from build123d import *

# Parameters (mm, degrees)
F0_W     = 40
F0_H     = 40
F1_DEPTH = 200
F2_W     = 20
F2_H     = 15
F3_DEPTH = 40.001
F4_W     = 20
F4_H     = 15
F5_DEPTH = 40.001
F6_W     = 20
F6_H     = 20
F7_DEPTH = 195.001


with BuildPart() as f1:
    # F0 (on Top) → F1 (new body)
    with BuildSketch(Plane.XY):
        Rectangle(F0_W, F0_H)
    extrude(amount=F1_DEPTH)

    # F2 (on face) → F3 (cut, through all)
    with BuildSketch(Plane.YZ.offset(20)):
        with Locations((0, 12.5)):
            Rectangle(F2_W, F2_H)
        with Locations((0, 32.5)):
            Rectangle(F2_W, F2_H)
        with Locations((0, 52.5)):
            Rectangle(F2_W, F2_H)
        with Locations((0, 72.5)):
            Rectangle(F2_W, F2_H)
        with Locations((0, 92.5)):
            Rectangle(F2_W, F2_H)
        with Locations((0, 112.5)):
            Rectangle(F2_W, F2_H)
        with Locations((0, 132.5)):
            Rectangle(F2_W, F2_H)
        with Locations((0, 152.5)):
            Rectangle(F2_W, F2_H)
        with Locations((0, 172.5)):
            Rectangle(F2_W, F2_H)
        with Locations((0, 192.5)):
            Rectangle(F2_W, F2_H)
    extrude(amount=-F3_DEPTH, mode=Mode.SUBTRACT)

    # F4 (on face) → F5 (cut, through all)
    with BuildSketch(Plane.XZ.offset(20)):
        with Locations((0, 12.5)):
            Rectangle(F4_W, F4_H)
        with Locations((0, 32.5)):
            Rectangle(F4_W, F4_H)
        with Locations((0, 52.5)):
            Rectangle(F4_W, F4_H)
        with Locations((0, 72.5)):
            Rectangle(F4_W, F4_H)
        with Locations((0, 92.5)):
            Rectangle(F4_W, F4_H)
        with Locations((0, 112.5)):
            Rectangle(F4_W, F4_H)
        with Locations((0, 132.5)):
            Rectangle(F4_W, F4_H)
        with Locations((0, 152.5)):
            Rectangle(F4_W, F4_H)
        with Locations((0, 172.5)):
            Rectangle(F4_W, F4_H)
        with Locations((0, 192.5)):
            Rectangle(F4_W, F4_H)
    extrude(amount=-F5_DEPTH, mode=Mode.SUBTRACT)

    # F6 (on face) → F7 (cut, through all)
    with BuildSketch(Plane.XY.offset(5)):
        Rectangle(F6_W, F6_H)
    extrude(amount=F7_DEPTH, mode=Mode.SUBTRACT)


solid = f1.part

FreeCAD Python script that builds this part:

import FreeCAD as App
import Part
import Sketcher

V = App.Vector

doc = App.newDocument("Part")
body = doc.addObject("PartDesign::Body", "Body")

# Sketch on XY plane
sketch1 = doc.addObject("Sketcher::SketchObject", "Sketch")
body.addObject(sketch1)
sketch1.AttachmentSupport = (doc.XY_Plane, [""])
sketch1.MapMode = "FlatFace"
sketch1.addGeometry(Part.LineSegment(V(-20, 20, 0), V(-20, -20, 0)), False)
sketch1.addGeometry(Part.LineSegment(V(-20, -20, 0), V(20, -20, 0)), False)
sketch1.addGeometry(Part.LineSegment(V(20, -20, 0), V(20, 20, 0)), False)
sketch1.addGeometry(Part.LineSegment(V(20, 20, 0), V(-20, 20, 0)), False)
sketch1.addConstraint(Sketcher.Constraint("Coincident", 0, 2, 1, 1))
sketch1.addConstraint(Sketcher.Constraint("Coincident", 1, 2, 2, 1))
sketch1.addConstraint(Sketcher.Constraint("Coincident", 2, 2, 3, 1))
sketch1.addConstraint(Sketcher.Constraint("Coincident", 3, 2, 0, 1))
sketch1.addConstraint(Sketcher.Constraint("Vertical", 0))
sketch1.addConstraint(Sketcher.Constraint("Horizontal", 1))
sketch1.addConstraint(Sketcher.Constraint("Vertical", 2))
sketch1.addConstraint(Sketcher.Constraint("Horizontal", 3))
sketch1.addConstraint(Sketcher.Constraint("Symmetric", 0, 2, 2, 2, -1, 1))
sketch1.addConstraint(Sketcher.Constraint("Equal", 3, 0))
sketch1.addConstraint(Sketcher.Constraint("DistanceX", 1, 1, 1, 2, 40.0))
pad1 = doc.addObject("PartDesign::Pad", "Pad")
body.addObject(pad1)
pad1.Profile = sketch1
pad1.Length = 200

# Sketch on YZ plane
sketch2 = doc.addObject("Sketcher::SketchObject", "Sketch001")
body.addObject(sketch2)
sketch2.AttachmentSupport = (doc.YZ_Plane, [""])
sketch2.MapMode = "FlatFace"
sketch2.AttachmentOffset = App.Placement(V(0, 0, 20), App.Rotation())
sketch2.addGeometry(Part.LineSegment(V(-10, 20, 0), V(-10, 5, 0)), False)
sketch2.addGeometry(Part.LineSegment(V(-10, 5, 0), V(10, 5, 0)), False)
sketch2.addGeometry(Part.LineSegment(V(10, 5, 0), V(10, 20, 0)), False)
sketch2.addGeometry(Part.LineSegment(V(10, 20, 0), V(-10, 20, 0)), False)
sketch2.addGeometry(Part.LineSegment(V(-10, 40, 0), V(-10, 25, 0)), False)
sketch2.addGeometry(Part.LineSegment(V(-10, 25, 0), V(10, 25, 0)), False)
sketch2.addGeometry(Part.LineSegment(V(10, 25, 0), V(10, 40, 0)), False)
sketch2.addGeometry(Part.LineSegment(V(10, 40, 0), V(-10, 40, 0)), False)
sketch2.addGeometry(Part.LineSegment(V(-10, 60, 0), V(-10, 45, 0)), False)
sketch2.addGeometry(Part.LineSegment(V(-10, 45, 0), V(10, 45, 0)), False)
sketch2.addGeometry(Part.LineSegment(V(10, 45, 0), V(10, 60, 0)), False)
sketch2.addGeometry(Part.LineSegment(V(10, 60, 0), V(-10, 60, 0)), False)
sketch2.addGeometry(Part.LineSegment(V(-10, 80, 0), V(-10, 65, 0)), False)
sketch2.addGeometry(Part.LineSegment(V(-10, 65, 0), V(10, 65, 0)), False)
sketch2.addGeometry(Part.LineSegment(V(10, 65, 0), V(10, 80, 0)), False)
sketch2.addGeometry(Part.LineSegment(V(10, 80, 0), V(-10, 80, 0)), False)
sketch2.addGeometry(Part.LineSegment(V(-10, 100, 0), V(-10, 85, 0)), False)
sketch2.addGeometry(Part.LineSegment(V(-10, 85, 0), V(10, 85, 0)), False)
sketch2.addGeometry(Part.LineSegment(V(10, 85, 0), V(10, 100, 0)), False)
sketch2.addGeometry(Part.LineSegment(V(10, 100, 0), V(-10, 100, 0)), False)
sketch2.addGeometry(Part.LineSegment(V(-10, 120, 0), V(-10, 105, 0)), False)
sketch2.addGeometry(Part.LineSegment(V(-10, 105, 0), V(10, 105, 0)), False)
sketch2.addGeometry(Part.LineSegment(V(10, 105, 0), V(10, 120, 0)), False)
sketch2.addGeometry(Part.LineSegment(V(10, 120, 0), V(-10, 120, 0)), False)
sketch2.addGeometry(Part.LineSegment(V(-10, 140, 0), V(-10, 125, 0)), False)
sketch2.addGeometry(Part.LineSegment(V(-10, 125, 0), V(10, 125, 0)), False)
sketch2.addGeometry(Part.LineSegment(V(10, 125, 0), V(10, 140, 0)), False)
sketch2.addGeometry(Part.LineSegment(V(10, 140, 0), V(-10, 140, 0)), False)
sketch2.addGeometry(Part.LineSegment(V(-10, 160, 0), V(-10, 145, 0)), False)
sketch2.addGeometry(Part.LineSegment(V(-10, 145, 0), V(10, 145, 0)), False)
sketch2.addGeometry(Part.LineSegment(V(10, 145, 0), V(10, 160, 0)), False)
sketch2.addGeometry(Part.LineSegment(V(10, 160, 0), V(-10, 160, 0)), False)
sketch2.addGeometry(Part.LineSegment(V(-10, 180, 0), V(-10, 165, 0)), False)
sketch2.addGeometry(Part.LineSegment(V(-10, 165, 0), V(10, 165, 0)), False)
sketch2.addGeometry(Part.LineSegment(V(10, 165, 0), V(10, 180, 0)), False)
sketch2.addGeometry(Part.LineSegment(V(10, 180, 0), V(-10, 180, 0)), False)
sketch2.addGeometry(Part.LineSegment(V(-10, 200, 0), V(-10, 185, 0)), False)
sketch2.addGeometry(Part.LineSegment(V(-10, 185, 0), V(10, 185, 0)), False)
sketch2.addGeometry(Part.LineSegment(V(10, 185, 0), V(10, 200, 0)), False)
sketch2.addGeometry(Part.LineSegment(V(10, 200, 0), V(-10, 200, 0)), False)
sketch2.addConstraint(Sketcher.Constraint("Coincident", 0, 2, 1, 1))
sketch2.addConstraint(Sketcher.Constraint("Coincident", 1, 2, 2, 1))
sketch2.addConstraint(Sketcher.Constraint("Coincident", 2, 2, 3, 1))
sketch2.addConstraint(Sketcher.Constraint("Coincident", 3, 2, 0, 1))
sketch2.addConstraint(Sketcher.Constraint("Coincident", 4, 2, 5, 1))
sketch2.addConstraint(Sketcher.Constraint("Coincident", 5, 2, 6, 1))
sketch2.addConstraint(Sketcher.Constraint("Coincident", 6, 2, 7, 1))
sketch2.addConstraint(Sketcher.Constraint("Coincident", 7, 2, 4, 1))
sketch2.addConstraint(Sketcher.Constraint("Coincident", 8, 2, 9, 1))
sketch2.addConstraint(Sketcher.Constraint("Coincident", 9, 2, 10, 1))
sketch2.addConstraint(Sketcher.Constraint("Coincident", 10, 2, 11, 1))
sketch2.addConstraint(Sketcher.Constraint("Coincident", 11, 2, 8, 1))
sketch2.addConstraint(Sketcher.Constraint("Coincident", 12, 2, 13, 1))
sketch2.addConstraint(Sketcher.Constraint("Coincident", 13, 2, 14, 1))
sketch2.addConstraint(Sketcher.Constraint("Coincident", 14, 2, 15, 1))
sketch2.addConstraint(Sketcher.Constraint("Coincident", 15, 2, 12, 1))
sketch2.addConstraint(Sketcher.Constraint("Coincident", 16, 2, 17, 1))
sketch2.addConstraint(Sketcher.Constraint("Coincident", 17, 2, 18, 1))
sketch2.addConstraint(Sketcher.Constraint("Coincident", 18, 2, 19, 1))
sketch2.addConstraint(Sketcher.Constraint("Coincident", 19, 2, 16, 1))
sketch2.addConstraint(Sketcher.Constraint("Coincident", 20, 2, 21, 1))
sketch2.addConstraint(Sketcher.Constraint("Coincident", 21, 2, 22, 1))
sketch2.addConstraint(Sketcher.Constraint("Coincident", 22, 2, 23, 1))
sketch2.addConstraint(Sketcher.Constraint("Coincident", 23, 2, 20, 1))
sketch2.addConstraint(Sketcher.Constraint("Coincident", 24, 2, 25, 1))
sketch2.addConstraint(Sketcher.Constraint("Coincident", 25, 2, 26, 1))
sketch2.addConstraint(Sketcher.Constraint("Coincident", 26, 2, 27, 1))
sketch2.addConstraint(Sketcher.Constraint("Coincident", 27, 2, 24, 1))
sketch2.addConstraint(Sketcher.Constraint("Coincident", 28, 2, 29, 1))
sketch2.addConstraint(Sketcher.Constraint("Coincident", 29, 2, 30, 1))
sketch2.addConstraint(Sketcher.Constraint("Coincident", 30, 2, 31, 1))
sketch2.addConstraint(Sketcher.Constraint("Coincident", 31, 2, 28, 1))
sketch2.addConstraint(Sketcher.Constraint("Coincident", 32, 2, 33, 1))
sketch2.addConstraint(Sketcher.Constraint("Coincident", 33, 2, 34, 1))
sketch2.addConstraint(Sketcher.Constraint("Coincident", 34, 2, 35, 1))
sketch2.addConstraint(Sketcher.Constraint("Coincident", 35, 2, 32, 1))
sketch2.addConstraint(Sketcher.Constraint("Coincident", 36, 2, 37, 1))
sketch2.addConstraint(Sketcher.Constraint("Coincident", 37, 2, 38, 1))
sketch2.addConstraint(Sketcher.Constraint("Coincident", 38, 2, 39, 1))
sketch2.addConstraint(Sketcher.Constraint("Coincident", 39, 2, 36, 1))
sketch2.addConstraint(Sketcher.Constraint("Vertical", 0))
sketch2.addConstraint(Sketcher.Constraint("Horizontal", 1))
sketch2.addConstraint(Sketcher.Constraint("Vertical", 2))
sketch2.addConstraint(Sketcher.Constraint("Horizontal", 3))
sketch2.addConstraint(Sketcher.Constraint("Vertical", 4))
sketch2.addConstraint(Sketcher.Constraint("Horizontal", 5))
sketch2.addConstraint(Sketcher.Constraint("Vertical", 6))
sketch2.addConstraint(Sketcher.Constraint("Horizontal", 7))
sketch2.addConstraint(Sketcher.Constraint("Vertical", 8))
sketch2.addConstraint(Sketcher.Constraint("Horizontal", 9))
sketch2.addConstraint(Sketcher.Constraint("Vertical", 10))
sketch2.addConstraint(Sketcher.Constraint("Horizontal", 11))
sketch2.addConstraint(Sketcher.Constraint("Vertical", 12))
sketch2.addConstraint(Sketcher.Constraint("Horizontal", 13))
sketch2.addConstraint(Sketcher.Constraint("Vertical", 14))
sketch2.addConstraint(Sketcher.Constraint("Horizontal", 15))
sketch2.addConstraint(Sketcher.Constraint("Vertical", 16))
sketch2.addConstraint(Sketcher.Constraint("Horizontal", 17))
sketch2.addConstraint(Sketcher.Constraint("Vertical", 18))
sketch2.addConstraint(Sketcher.Constraint("Horizontal", 19))
sketch2.addConstraint(Sketcher.Constraint("Vertical", 20))
sketch2.addConstraint(Sketcher.Constraint("Horizontal", 21))
sketch2.addConstraint(Sketcher.Constraint("Vertical", 22))
sketch2.addConstraint(Sketcher.Constraint("Horizontal", 23))
sketch2.addConstraint(Sketcher.Constraint("Vertical", 24))
sketch2.addConstraint(Sketcher.Constraint("Horizontal", 25))
sketch2.addConstraint(Sketcher.Constraint("Vertical", 26))
sketch2.addConstraint(Sketcher.Constraint("Horizontal", 27))
sketch2.addConstraint(Sketcher.Constraint("Vertical", 28))
sketch2.addConstraint(Sketcher.Constraint("Horizontal", 29))
sketch2.addConstraint(Sketcher.Constraint("Vertical", 30))
sketch2.addConstraint(Sketcher.Constraint("Horizontal", 31))
sketch2.addConstraint(Sketcher.Constraint("Vertical", 32))
sketch2.addConstraint(Sketcher.Constraint("Horizontal", 33))
sketch2.addConstraint(Sketcher.Constraint("Vertical", 34))
sketch2.addConstraint(Sketcher.Constraint("Horizontal", 35))
sketch2.addConstraint(Sketcher.Constraint("Vertical", 36))
sketch2.addConstraint(Sketcher.Constraint("Horizontal", 37))
sketch2.addConstraint(Sketcher.Constraint("Vertical", 38))
sketch2.addConstraint(Sketcher.Constraint("Horizontal", 39))
sketch2.addConstraint(Sketcher.Constraint("Vertical", 3, 2, 4, 2))
sketch2.addConstraint(Sketcher.Constraint("Vertical", 2, 2, 5, 2))
sketch2.addConstraint(Sketcher.Constraint("Vertical", 7, 2, 8, 2))
sketch2.addConstraint(Sketcher.Constraint("Vertical", 6, 2, 9, 2))
sketch2.addConstraint(Sketcher.Constraint("Vertical", 11, 2, 12, 2))
sketch2.addConstraint(Sketcher.Constraint("Vertical", 10, 2, 13, 2))
sketch2.addConstraint(Sketcher.Constraint("Vertical", 15, 2, 16, 2))
sketch2.addConstraint(Sketcher.Constraint("Vertical", 14, 2, 17, 2))
sketch2.addConstraint(Sketcher.Constraint("Vertical", 19, 2, 20, 2))
sketch2.addConstraint(Sketcher.Constraint("Vertical", 18, 2, 21, 2))
sketch2.addConstraint(Sketcher.Constraint("Vertical", 23, 2, 24, 2))
sketch2.addConstraint(Sketcher.Constraint("Vertical", 22, 2, 25, 2))
sketch2.addConstraint(Sketcher.Constraint("Vertical", 27, 2, 28, 2))
sketch2.addConstraint(Sketcher.Constraint("Vertical", 26, 2, 29, 2))
sketch2.addConstraint(Sketcher.Constraint("Vertical", 31, 2, 32, 2))
sketch2.addConstraint(Sketcher.Constraint("Vertical", 30, 2, 33, 2))
sketch2.addConstraint(Sketcher.Constraint("Vertical", 35, 2, 36, 2))
sketch2.addConstraint(Sketcher.Constraint("Vertical", 34, 2, 37, 2))
sketch2.addConstraint(Sketcher.Constraint("Equal", 2, 4))
sketch2.addConstraint(Sketcher.Constraint("Equal", 6, 8))
sketch2.addConstraint(Sketcher.Constraint("Equal", 10, 12))
sketch2.addConstraint(Sketcher.Constraint("Equal", 14, 16))
sketch2.addConstraint(Sketcher.Constraint("Equal", 18, 20))
sketch2.addConstraint(Sketcher.Constraint("Equal", 22, 24))
sketch2.addConstraint(Sketcher.Constraint("Equal", 26, 28))
sketch2.addConstraint(Sketcher.Constraint("Equal", 30, 32))
sketch2.addConstraint(Sketcher.Constraint("Equal", 34, 36))
sketch2.addConstraint(Sketcher.Constraint("DistanceX", 1, 1, 1, 2, 20.0))
sketch2.addConstraint(Sketcher.Constraint("DistanceY", 0, 2, 0, 1, 15.0))
sketch2.addConstraint(Sketcher.Constraint("DistanceX", 0, 2, -1, 1, 10.0))
sketch2.addConstraint(Sketcher.Constraint("DistanceY", -1, 1, 0, 2, 5.0))
sketch2.addConstraint(Sketcher.Constraint("DistanceY", -1, 1, 4, 2, 25.0))
sketch2.addConstraint(Sketcher.Constraint("DistanceY", -1, 1, 8, 2, 45.0))
sketch2.addConstraint(Sketcher.Constraint("DistanceY", -1, 1, 12, 2, 65.0))
sketch2.addConstraint(Sketcher.Constraint("DistanceY", -1, 1, 16, 2, 85.0))
sketch2.addConstraint(Sketcher.Constraint("DistanceY", -1, 1, 20, 2, 105.0))
sketch2.addConstraint(Sketcher.Constraint("DistanceY", -1, 1, 24, 2, 125.0))
sketch2.addConstraint(Sketcher.Constraint("DistanceY", -1, 1, 28, 2, 145.0))
sketch2.addConstraint(Sketcher.Constraint("DistanceY", -1, 1, 32, 2, 165.0))
sketch2.addConstraint(Sketcher.Constraint("DistanceY", -1, 1, 36, 2, 185.0))
pocket1 = doc.addObject("PartDesign::Pocket", "Pocket")
body.addObject(pocket1)
pocket1.Profile = sketch2
pocket1.Type = "ThroughAll"

# Sketch on XZ plane
sketch3 = doc.addObject("Sketcher::SketchObject", "Sketch002")
body.addObject(sketch3)
sketch3.AttachmentSupport = (doc.XZ_Plane, [""])
sketch3.MapMode = "FlatFace"
sketch3.AttachmentOffset = App.Placement(V(0, 0, 20), App.Rotation())
sketch3.addGeometry(Part.LineSegment(V(-10, 20, 0), V(-10, 5, 0)), False)
sketch3.addGeometry(Part.LineSegment(V(-10, 5, 0), V(10, 5, 0)), False)
sketch3.addGeometry(Part.LineSegment(V(10, 5, 0), V(10, 20, 0)), False)
sketch3.addGeometry(Part.LineSegment(V(10, 20, 0), V(-10, 20, 0)), False)
sketch3.addGeometry(Part.LineSegment(V(-10, 40, 0), V(-10, 25, 0)), False)
sketch3.addGeometry(Part.LineSegment(V(-10, 25, 0), V(10, 25, 0)), False)
sketch3.addGeometry(Part.LineSegment(V(10, 25, 0), V(10, 40, 0)), False)
sketch3.addGeometry(Part.LineSegment(V(10, 40, 0), V(-10, 40, 0)), False)
sketch3.addGeometry(Part.LineSegment(V(-10, 60, 0), V(-10, 45, 0)), False)
sketch3.addGeometry(Part.LineSegment(V(-10, 45, 0), V(10, 45, 0)), False)
sketch3.addGeometry(Part.LineSegment(V(10, 45, 0), V(10, 60, 0)), False)
sketch3.addGeometry(Part.LineSegment(V(10, 60, 0), V(-10, 60, 0)), False)
sketch3.addGeometry(Part.LineSegment(V(-10, 80, 0), V(-10, 65, 0)), False)
sketch3.addGeometry(Part.LineSegment(V(-10, 65, 0), V(10, 65, 0)), False)
sketch3.addGeometry(Part.LineSegment(V(10, 65, 0), V(10, 80, 0)), False)
sketch3.addGeometry(Part.LineSegment(V(10, 80, 0), V(-10, 80, 0)), False)
sketch3.addGeometry(Part.LineSegment(V(-10, 100, 0), V(-10, 85, 0)), False)
sketch3.addGeometry(Part.LineSegment(V(-10, 85, 0), V(10, 85, 0)), False)
sketch3.addGeometry(Part.LineSegment(V(10, 85, 0), V(10, 100, 0)), False)
sketch3.addGeometry(Part.LineSegment(V(10, 100, 0), V(-10, 100, 0)), False)
sketch3.addGeometry(Part.LineSegment(V(-10, 120, 0), V(-10, 105, 0)), False)
sketch3.addGeometry(Part.LineSegment(V(-10, 105, 0), V(10, 105, 0)), False)
sketch3.addGeometry(Part.LineSegment(V(10, 105, 0), V(10, 120, 0)), False)
sketch3.addGeometry(Part.LineSegment(V(10, 120, 0), V(-10, 120, 0)), False)
sketch3.addGeometry(Part.LineSegment(V(-10, 140, 0), V(-10, 125, 0)), False)
sketch3.addGeometry(Part.LineSegment(V(-10, 125, 0), V(10, 125, 0)), False)
sketch3.addGeometry(Part.LineSegment(V(10, 125, 0), V(10, 140, 0)), False)
sketch3.addGeometry(Part.LineSegment(V(10, 140, 0), V(-10, 140, 0)), False)
sketch3.addGeometry(Part.LineSegment(V(-10, 160, 0), V(-10, 145, 0)), False)
sketch3.addGeometry(Part.LineSegment(V(-10, 145, 0), V(10, 145, 0)), False)
sketch3.addGeometry(Part.LineSegment(V(10, 145, 0), V(10, 160, 0)), False)
sketch3.addGeometry(Part.LineSegment(V(10, 160, 0), V(-10, 160, 0)), False)
sketch3.addGeometry(Part.LineSegment(V(-10, 180, 0), V(-10, 165, 0)), False)
sketch3.addGeometry(Part.LineSegment(V(-10, 165, 0), V(10, 165, 0)), False)
sketch3.addGeometry(Part.LineSegment(V(10, 165, 0), V(10, 180, 0)), False)
sketch3.addGeometry(Part.LineSegment(V(10, 180, 0), V(-10, 180, 0)), False)
sketch3.addGeometry(Part.LineSegment(V(-10, 200, 0), V(-10, 185, 0)), False)
sketch3.addGeometry(Part.LineSegment(V(-10, 185, 0), V(10, 185, 0)), False)
sketch3.addGeometry(Part.LineSegment(V(10, 185, 0), V(10, 200, 0)), False)
sketch3.addGeometry(Part.LineSegment(V(10, 200, 0), V(-10, 200, 0)), False)
sketch3.addConstraint(Sketcher.Constraint("Coincident", 0, 2, 1, 1))
sketch3.addConstraint(Sketcher.Constraint("Coincident", 1, 2, 2, 1))
sketch3.addConstraint(Sketcher.Constraint("Coincident", 2, 2, 3, 1))
sketch3.addConstraint(Sketcher.Constraint("Coincident", 3, 2, 0, 1))
sketch3.addConstraint(Sketcher.Constraint("Coincident", 4, 2, 5, 1))
sketch3.addConstraint(Sketcher.Constraint("Coincident", 5, 2, 6, 1))
sketch3.addConstraint(Sketcher.Constraint("Coincident", 6, 2, 7, 1))
sketch3.addConstraint(Sketcher.Constraint("Coincident", 7, 2, 4, 1))
sketch3.addConstraint(Sketcher.Constraint("Coincident", 8, 2, 9, 1))
sketch3.addConstraint(Sketcher.Constraint("Coincident", 9, 2, 10, 1))
sketch3.addConstraint(Sketcher.Constraint("Coincident", 10, 2, 11, 1))
sketch3.addConstraint(Sketcher.Constraint("Coincident", 11, 2, 8, 1))
sketch3.addConstraint(Sketcher.Constraint("Coincident", 12, 2, 13, 1))
sketch3.addConstraint(Sketcher.Constraint("Coincident", 13, 2, 14, 1))
sketch3.addConstraint(Sketcher.Constraint("Coincident", 14, 2, 15, 1))
sketch3.addConstraint(Sketcher.Constraint("Coincident", 15, 2, 12, 1))
sketch3.addConstraint(Sketcher.Constraint("Coincident", 16, 2, 17, 1))
sketch3.addConstraint(Sketcher.Constraint("Coincident", 17, 2, 18, 1))
sketch3.addConstraint(Sketcher.Constraint("Coincident", 18, 2, 19, 1))
sketch3.addConstraint(Sketcher.Constraint("Coincident", 19, 2, 16, 1))
sketch3.addConstraint(Sketcher.Constraint("Coincident", 20, 2, 21, 1))
sketch3.addConstraint(Sketcher.Constraint("Coincident", 21, 2, 22, 1))
sketch3.addConstraint(Sketcher.Constraint("Coincident", 22, 2, 23, 1))
sketch3.addConstraint(Sketcher.Constraint("Coincident", 23, 2, 20, 1))
sketch3.addConstraint(Sketcher.Constraint("Coincident", 24, 2, 25, 1))
sketch3.addConstraint(Sketcher.Constraint("Coincident", 25, 2, 26, 1))
sketch3.addConstraint(Sketcher.Constraint("Coincident", 26, 2, 27, 1))
sketch3.addConstraint(Sketcher.Constraint("Coincident", 27, 2, 24, 1))
sketch3.addConstraint(Sketcher.Constraint("Coincident", 28, 2, 29, 1))
sketch3.addConstraint(Sketcher.Constraint("Coincident", 29, 2, 30, 1))
sketch3.addConstraint(Sketcher.Constraint("Coincident", 30, 2, 31, 1))
sketch3.addConstraint(Sketcher.Constraint("Coincident", 31, 2, 28, 1))
sketch3.addConstraint(Sketcher.Constraint("Coincident", 32, 2, 33, 1))
sketch3.addConstraint(Sketcher.Constraint("Coincident", 33, 2, 34, 1))
sketch3.addConstraint(Sketcher.Constraint("Coincident", 34, 2, 35, 1))
sketch3.addConstraint(Sketcher.Constraint("Coincident", 35, 2, 32, 1))
sketch3.addConstraint(Sketcher.Constraint("Coincident", 36, 2, 37, 1))
sketch3.addConstraint(Sketcher.Constraint("Coincident", 37, 2, 38, 1))
sketch3.addConstraint(Sketcher.Constraint("Coincident", 38, 2, 39, 1))
sketch3.addConstraint(Sketcher.Constraint("Coincident", 39, 2, 36, 1))
sketch3.addConstraint(Sketcher.Constraint("Vertical", 0))
sketch3.addConstraint(Sketcher.Constraint("Horizontal", 1))
sketch3.addConstraint(Sketcher.Constraint("Vertical", 2))
sketch3.addConstraint(Sketcher.Constraint("Horizontal", 3))
sketch3.addConstraint(Sketcher.Constraint("Vertical", 4))
sketch3.addConstraint(Sketcher.Constraint("Horizontal", 5))
sketch3.addConstraint(Sketcher.Constraint("Vertical", 6))
sketch3.addConstraint(Sketcher.Constraint("Horizontal", 7))
sketch3.addConstraint(Sketcher.Constraint("Vertical", 8))
sketch3.addConstraint(Sketcher.Constraint("Horizontal", 9))
sketch3.addConstraint(Sketcher.Constraint("Vertical", 10))
sketch3.addConstraint(Sketcher.Constraint("Horizontal", 11))
sketch3.addConstraint(Sketcher.Constraint("Vertical", 12))
sketch3.addConstraint(Sketcher.Constraint("Horizontal", 13))
sketch3.addConstraint(Sketcher.Constraint("Vertical", 14))
sketch3.addConstraint(Sketcher.Constraint("Horizontal", 15))
sketch3.addConstraint(Sketcher.Constraint("Vertical", 16))
sketch3.addConstraint(Sketcher.Constraint("Horizontal", 17))
sketch3.addConstraint(Sketcher.Constraint("Vertical", 18))
sketch3.addConstraint(Sketcher.Constraint("Horizontal", 19))
sketch3.addConstraint(Sketcher.Constraint("Vertical", 20))
sketch3.addConstraint(Sketcher.Constraint("Horizontal", 21))
sketch3.addConstraint(Sketcher.Constraint("Vertical", 22))
sketch3.addConstraint(Sketcher.Constraint("Horizontal", 23))
sketch3.addConstraint(Sketcher.Constraint("Vertical", 24))
sketch3.addConstraint(Sketcher.Constraint("Horizontal", 25))
sketch3.addConstraint(Sketcher.Constraint("Vertical", 26))
sketch3.addConstraint(Sketcher.Constraint("Horizontal", 27))
sketch3.addConstraint(Sketcher.Constraint("Vertical", 28))
sketch3.addConstraint(Sketcher.Constraint("Horizontal", 29))
sketch3.addConstraint(Sketcher.Constraint("Vertical", 30))
sketch3.addConstraint(Sketcher.Constraint("Horizontal", 31))
sketch3.addConstraint(Sketcher.Constraint("Vertical", 32))
sketch3.addConstraint(Sketcher.Constraint("Horizontal", 33))
sketch3.addConstraint(Sketcher.Constraint("Vertical", 34))
sketch3.addConstraint(Sketcher.Constraint("Horizontal", 35))
sketch3.addConstraint(Sketcher.Constraint("Vertical", 36))
sketch3.addConstraint(Sketcher.Constraint("Horizontal", 37))
sketch3.addConstraint(Sketcher.Constraint("Vertical", 38))
sketch3.addConstraint(Sketcher.Constraint("Horizontal", 39))
sketch3.addConstraint(Sketcher.Constraint("Vertical", 3, 2, 4, 2))
sketch3.addConstraint(Sketcher.Constraint("Vertical", 2, 2, 5, 2))
sketch3.addConstraint(Sketcher.Constraint("Vertical", 7, 2, 8, 2))
sketch3.addConstraint(Sketcher.Constraint("Vertical", 6, 2, 9, 2))
sketch3.addConstraint(Sketcher.Constraint("Vertical", 11, 2, 12, 2))
sketch3.addConstraint(Sketcher.Constraint("Vertical", 10, 2, 13, 2))
sketch3.addConstraint(Sketcher.Constraint("Vertical", 15, 2, 16, 2))
sketch3.addConstraint(Sketcher.Constraint("Vertical", 14, 2, 17, 2))
sketch3.addConstraint(Sketcher.Constraint("Vertical", 19, 2, 20, 2))
sketch3.addConstraint(Sketcher.Constraint("Vertical", 18, 2, 21, 2))
sketch3.addConstraint(Sketcher.Constraint("Vertical", 23, 2, 24, 2))
sketch3.addConstraint(Sketcher.Constraint("Vertical", 22, 2, 25, 2))
sketch3.addConstraint(Sketcher.Constraint("Vertical", 27, 2, 28, 2))
sketch3.addConstraint(Sketcher.Constraint("Vertical", 26, 2, 29, 2))
sketch3.addConstraint(Sketcher.Constraint("Vertical", 31, 2, 32, 2))
sketch3.addConstraint(Sketcher.Constraint("Vertical", 30, 2, 33, 2))
sketch3.addConstraint(Sketcher.Constraint("Vertical", 35, 2, 36, 2))
sketch3.addConstraint(Sketcher.Constraint("Vertical", 34, 2, 37, 2))
sketch3.addConstraint(Sketcher.Constraint("Equal", 2, 4))
sketch3.addConstraint(Sketcher.Constraint("Equal", 6, 8))
sketch3.addConstraint(Sketcher.Constraint("Equal", 10, 12))
sketch3.addConstraint(Sketcher.Constraint("Equal", 14, 16))
sketch3.addConstraint(Sketcher.Constraint("Equal", 18, 20))
sketch3.addConstraint(Sketcher.Constraint("Equal", 22, 24))
sketch3.addConstraint(Sketcher.Constraint("Equal", 26, 28))
sketch3.addConstraint(Sketcher.Constraint("Equal", 30, 32))
sketch3.addConstraint(Sketcher.Constraint("Equal", 34, 36))
sketch3.addConstraint(Sketcher.Constraint("DistanceX", 1, 1, 1, 2, 20.0))
sketch3.addConstraint(Sketcher.Constraint("DistanceY", 0, 2, 0, 1, 15.0))
sketch3.addConstraint(Sketcher.Constraint("DistanceX", 0, 2, -1, 1, 10.0))
sketch3.addConstraint(Sketcher.Constraint("DistanceY", -1, 1, 0, 2, 5.0))
sketch3.addConstraint(Sketcher.Constraint("DistanceY", -1, 1, 4, 2, 25.0))
sketch3.addConstraint(Sketcher.Constraint("DistanceY", -1, 1, 8, 2, 45.0))
sketch3.addConstraint(Sketcher.Constraint("DistanceY", -1, 1, 12, 2, 65.0))
sketch3.addConstraint(Sketcher.Constraint("DistanceY", -1, 1, 16, 2, 85.0))
sketch3.addConstraint(Sketcher.Constraint("DistanceY", -1, 1, 20, 2, 105.0))
sketch3.addConstraint(Sketcher.Constraint("DistanceY", -1, 1, 24, 2, 125.0))
sketch3.addConstraint(Sketcher.Constraint("DistanceY", -1, 1, 28, 2, 145.0))
sketch3.addConstraint(Sketcher.Constraint("DistanceY", -1, 1, 32, 2, 165.0))
sketch3.addConstraint(Sketcher.Constraint("DistanceY", -1, 1, 36, 2, 185.0))
pocket2 = doc.addObject("PartDesign::Pocket", "Pocket001")
body.addObject(pocket2)
pocket2.Profile = sketch3
pocket2.Type = "ThroughAll"

# Sketch on XY plane
sketch4 = doc.addObject("Sketcher::SketchObject", "Sketch003")
body.addObject(sketch4)
sketch4.AttachmentSupport = (doc.XY_Plane, [""])
sketch4.MapMode = "FlatFace"
sketch4.AttachmentOffset = App.Placement(V(0, 0, 5), App.Rotation())
sketch4.addGeometry(Part.LineSegment(V(-10, 10, 0), V(-10, -10, 0)), False)
sketch4.addGeometry(Part.LineSegment(V(-10, -10, 0), V(10, -10, 0)), False)
sketch4.addGeometry(Part.LineSegment(V(10, -10, 0), V(10, 10, 0)), False)
sketch4.addGeometry(Part.LineSegment(V(10, 10, 0), V(-10, 10, 0)), False)
sketch4.addConstraint(Sketcher.Constraint("Coincident", 0, 2, 1, 1))
sketch4.addConstraint(Sketcher.Constraint("Coincident", 1, 2, 2, 1))
sketch4.addConstraint(Sketcher.Constraint("Coincident", 2, 2, 3, 1))
sketch4.addConstraint(Sketcher.Constraint("Coincident", 3, 2, 0, 1))
sketch4.addConstraint(Sketcher.Constraint("Vertical", 0))
sketch4.addConstraint(Sketcher.Constraint("Horizontal", 1))
sketch4.addConstraint(Sketcher.Constraint("Vertical", 2))
sketch4.addConstraint(Sketcher.Constraint("Horizontal", 3))
sketch4.addConstraint(Sketcher.Constraint("Symmetric", 0, 2, 2, 2, -1, 1))
sketch4.addConstraint(Sketcher.Constraint("Equal", 3, 0))
sketch4.addConstraint(Sketcher.Constraint("DistanceX", 1, 1, 1, 2, 20.0))
pocket3 = doc.addObject("PartDesign::Pocket", "Pocket002")
body.addObject(pocket3)
pocket3.Profile = sketch4
pocket3.Type = "ThroughAll"
pocket3.Reversed = True

doc.recompute()
